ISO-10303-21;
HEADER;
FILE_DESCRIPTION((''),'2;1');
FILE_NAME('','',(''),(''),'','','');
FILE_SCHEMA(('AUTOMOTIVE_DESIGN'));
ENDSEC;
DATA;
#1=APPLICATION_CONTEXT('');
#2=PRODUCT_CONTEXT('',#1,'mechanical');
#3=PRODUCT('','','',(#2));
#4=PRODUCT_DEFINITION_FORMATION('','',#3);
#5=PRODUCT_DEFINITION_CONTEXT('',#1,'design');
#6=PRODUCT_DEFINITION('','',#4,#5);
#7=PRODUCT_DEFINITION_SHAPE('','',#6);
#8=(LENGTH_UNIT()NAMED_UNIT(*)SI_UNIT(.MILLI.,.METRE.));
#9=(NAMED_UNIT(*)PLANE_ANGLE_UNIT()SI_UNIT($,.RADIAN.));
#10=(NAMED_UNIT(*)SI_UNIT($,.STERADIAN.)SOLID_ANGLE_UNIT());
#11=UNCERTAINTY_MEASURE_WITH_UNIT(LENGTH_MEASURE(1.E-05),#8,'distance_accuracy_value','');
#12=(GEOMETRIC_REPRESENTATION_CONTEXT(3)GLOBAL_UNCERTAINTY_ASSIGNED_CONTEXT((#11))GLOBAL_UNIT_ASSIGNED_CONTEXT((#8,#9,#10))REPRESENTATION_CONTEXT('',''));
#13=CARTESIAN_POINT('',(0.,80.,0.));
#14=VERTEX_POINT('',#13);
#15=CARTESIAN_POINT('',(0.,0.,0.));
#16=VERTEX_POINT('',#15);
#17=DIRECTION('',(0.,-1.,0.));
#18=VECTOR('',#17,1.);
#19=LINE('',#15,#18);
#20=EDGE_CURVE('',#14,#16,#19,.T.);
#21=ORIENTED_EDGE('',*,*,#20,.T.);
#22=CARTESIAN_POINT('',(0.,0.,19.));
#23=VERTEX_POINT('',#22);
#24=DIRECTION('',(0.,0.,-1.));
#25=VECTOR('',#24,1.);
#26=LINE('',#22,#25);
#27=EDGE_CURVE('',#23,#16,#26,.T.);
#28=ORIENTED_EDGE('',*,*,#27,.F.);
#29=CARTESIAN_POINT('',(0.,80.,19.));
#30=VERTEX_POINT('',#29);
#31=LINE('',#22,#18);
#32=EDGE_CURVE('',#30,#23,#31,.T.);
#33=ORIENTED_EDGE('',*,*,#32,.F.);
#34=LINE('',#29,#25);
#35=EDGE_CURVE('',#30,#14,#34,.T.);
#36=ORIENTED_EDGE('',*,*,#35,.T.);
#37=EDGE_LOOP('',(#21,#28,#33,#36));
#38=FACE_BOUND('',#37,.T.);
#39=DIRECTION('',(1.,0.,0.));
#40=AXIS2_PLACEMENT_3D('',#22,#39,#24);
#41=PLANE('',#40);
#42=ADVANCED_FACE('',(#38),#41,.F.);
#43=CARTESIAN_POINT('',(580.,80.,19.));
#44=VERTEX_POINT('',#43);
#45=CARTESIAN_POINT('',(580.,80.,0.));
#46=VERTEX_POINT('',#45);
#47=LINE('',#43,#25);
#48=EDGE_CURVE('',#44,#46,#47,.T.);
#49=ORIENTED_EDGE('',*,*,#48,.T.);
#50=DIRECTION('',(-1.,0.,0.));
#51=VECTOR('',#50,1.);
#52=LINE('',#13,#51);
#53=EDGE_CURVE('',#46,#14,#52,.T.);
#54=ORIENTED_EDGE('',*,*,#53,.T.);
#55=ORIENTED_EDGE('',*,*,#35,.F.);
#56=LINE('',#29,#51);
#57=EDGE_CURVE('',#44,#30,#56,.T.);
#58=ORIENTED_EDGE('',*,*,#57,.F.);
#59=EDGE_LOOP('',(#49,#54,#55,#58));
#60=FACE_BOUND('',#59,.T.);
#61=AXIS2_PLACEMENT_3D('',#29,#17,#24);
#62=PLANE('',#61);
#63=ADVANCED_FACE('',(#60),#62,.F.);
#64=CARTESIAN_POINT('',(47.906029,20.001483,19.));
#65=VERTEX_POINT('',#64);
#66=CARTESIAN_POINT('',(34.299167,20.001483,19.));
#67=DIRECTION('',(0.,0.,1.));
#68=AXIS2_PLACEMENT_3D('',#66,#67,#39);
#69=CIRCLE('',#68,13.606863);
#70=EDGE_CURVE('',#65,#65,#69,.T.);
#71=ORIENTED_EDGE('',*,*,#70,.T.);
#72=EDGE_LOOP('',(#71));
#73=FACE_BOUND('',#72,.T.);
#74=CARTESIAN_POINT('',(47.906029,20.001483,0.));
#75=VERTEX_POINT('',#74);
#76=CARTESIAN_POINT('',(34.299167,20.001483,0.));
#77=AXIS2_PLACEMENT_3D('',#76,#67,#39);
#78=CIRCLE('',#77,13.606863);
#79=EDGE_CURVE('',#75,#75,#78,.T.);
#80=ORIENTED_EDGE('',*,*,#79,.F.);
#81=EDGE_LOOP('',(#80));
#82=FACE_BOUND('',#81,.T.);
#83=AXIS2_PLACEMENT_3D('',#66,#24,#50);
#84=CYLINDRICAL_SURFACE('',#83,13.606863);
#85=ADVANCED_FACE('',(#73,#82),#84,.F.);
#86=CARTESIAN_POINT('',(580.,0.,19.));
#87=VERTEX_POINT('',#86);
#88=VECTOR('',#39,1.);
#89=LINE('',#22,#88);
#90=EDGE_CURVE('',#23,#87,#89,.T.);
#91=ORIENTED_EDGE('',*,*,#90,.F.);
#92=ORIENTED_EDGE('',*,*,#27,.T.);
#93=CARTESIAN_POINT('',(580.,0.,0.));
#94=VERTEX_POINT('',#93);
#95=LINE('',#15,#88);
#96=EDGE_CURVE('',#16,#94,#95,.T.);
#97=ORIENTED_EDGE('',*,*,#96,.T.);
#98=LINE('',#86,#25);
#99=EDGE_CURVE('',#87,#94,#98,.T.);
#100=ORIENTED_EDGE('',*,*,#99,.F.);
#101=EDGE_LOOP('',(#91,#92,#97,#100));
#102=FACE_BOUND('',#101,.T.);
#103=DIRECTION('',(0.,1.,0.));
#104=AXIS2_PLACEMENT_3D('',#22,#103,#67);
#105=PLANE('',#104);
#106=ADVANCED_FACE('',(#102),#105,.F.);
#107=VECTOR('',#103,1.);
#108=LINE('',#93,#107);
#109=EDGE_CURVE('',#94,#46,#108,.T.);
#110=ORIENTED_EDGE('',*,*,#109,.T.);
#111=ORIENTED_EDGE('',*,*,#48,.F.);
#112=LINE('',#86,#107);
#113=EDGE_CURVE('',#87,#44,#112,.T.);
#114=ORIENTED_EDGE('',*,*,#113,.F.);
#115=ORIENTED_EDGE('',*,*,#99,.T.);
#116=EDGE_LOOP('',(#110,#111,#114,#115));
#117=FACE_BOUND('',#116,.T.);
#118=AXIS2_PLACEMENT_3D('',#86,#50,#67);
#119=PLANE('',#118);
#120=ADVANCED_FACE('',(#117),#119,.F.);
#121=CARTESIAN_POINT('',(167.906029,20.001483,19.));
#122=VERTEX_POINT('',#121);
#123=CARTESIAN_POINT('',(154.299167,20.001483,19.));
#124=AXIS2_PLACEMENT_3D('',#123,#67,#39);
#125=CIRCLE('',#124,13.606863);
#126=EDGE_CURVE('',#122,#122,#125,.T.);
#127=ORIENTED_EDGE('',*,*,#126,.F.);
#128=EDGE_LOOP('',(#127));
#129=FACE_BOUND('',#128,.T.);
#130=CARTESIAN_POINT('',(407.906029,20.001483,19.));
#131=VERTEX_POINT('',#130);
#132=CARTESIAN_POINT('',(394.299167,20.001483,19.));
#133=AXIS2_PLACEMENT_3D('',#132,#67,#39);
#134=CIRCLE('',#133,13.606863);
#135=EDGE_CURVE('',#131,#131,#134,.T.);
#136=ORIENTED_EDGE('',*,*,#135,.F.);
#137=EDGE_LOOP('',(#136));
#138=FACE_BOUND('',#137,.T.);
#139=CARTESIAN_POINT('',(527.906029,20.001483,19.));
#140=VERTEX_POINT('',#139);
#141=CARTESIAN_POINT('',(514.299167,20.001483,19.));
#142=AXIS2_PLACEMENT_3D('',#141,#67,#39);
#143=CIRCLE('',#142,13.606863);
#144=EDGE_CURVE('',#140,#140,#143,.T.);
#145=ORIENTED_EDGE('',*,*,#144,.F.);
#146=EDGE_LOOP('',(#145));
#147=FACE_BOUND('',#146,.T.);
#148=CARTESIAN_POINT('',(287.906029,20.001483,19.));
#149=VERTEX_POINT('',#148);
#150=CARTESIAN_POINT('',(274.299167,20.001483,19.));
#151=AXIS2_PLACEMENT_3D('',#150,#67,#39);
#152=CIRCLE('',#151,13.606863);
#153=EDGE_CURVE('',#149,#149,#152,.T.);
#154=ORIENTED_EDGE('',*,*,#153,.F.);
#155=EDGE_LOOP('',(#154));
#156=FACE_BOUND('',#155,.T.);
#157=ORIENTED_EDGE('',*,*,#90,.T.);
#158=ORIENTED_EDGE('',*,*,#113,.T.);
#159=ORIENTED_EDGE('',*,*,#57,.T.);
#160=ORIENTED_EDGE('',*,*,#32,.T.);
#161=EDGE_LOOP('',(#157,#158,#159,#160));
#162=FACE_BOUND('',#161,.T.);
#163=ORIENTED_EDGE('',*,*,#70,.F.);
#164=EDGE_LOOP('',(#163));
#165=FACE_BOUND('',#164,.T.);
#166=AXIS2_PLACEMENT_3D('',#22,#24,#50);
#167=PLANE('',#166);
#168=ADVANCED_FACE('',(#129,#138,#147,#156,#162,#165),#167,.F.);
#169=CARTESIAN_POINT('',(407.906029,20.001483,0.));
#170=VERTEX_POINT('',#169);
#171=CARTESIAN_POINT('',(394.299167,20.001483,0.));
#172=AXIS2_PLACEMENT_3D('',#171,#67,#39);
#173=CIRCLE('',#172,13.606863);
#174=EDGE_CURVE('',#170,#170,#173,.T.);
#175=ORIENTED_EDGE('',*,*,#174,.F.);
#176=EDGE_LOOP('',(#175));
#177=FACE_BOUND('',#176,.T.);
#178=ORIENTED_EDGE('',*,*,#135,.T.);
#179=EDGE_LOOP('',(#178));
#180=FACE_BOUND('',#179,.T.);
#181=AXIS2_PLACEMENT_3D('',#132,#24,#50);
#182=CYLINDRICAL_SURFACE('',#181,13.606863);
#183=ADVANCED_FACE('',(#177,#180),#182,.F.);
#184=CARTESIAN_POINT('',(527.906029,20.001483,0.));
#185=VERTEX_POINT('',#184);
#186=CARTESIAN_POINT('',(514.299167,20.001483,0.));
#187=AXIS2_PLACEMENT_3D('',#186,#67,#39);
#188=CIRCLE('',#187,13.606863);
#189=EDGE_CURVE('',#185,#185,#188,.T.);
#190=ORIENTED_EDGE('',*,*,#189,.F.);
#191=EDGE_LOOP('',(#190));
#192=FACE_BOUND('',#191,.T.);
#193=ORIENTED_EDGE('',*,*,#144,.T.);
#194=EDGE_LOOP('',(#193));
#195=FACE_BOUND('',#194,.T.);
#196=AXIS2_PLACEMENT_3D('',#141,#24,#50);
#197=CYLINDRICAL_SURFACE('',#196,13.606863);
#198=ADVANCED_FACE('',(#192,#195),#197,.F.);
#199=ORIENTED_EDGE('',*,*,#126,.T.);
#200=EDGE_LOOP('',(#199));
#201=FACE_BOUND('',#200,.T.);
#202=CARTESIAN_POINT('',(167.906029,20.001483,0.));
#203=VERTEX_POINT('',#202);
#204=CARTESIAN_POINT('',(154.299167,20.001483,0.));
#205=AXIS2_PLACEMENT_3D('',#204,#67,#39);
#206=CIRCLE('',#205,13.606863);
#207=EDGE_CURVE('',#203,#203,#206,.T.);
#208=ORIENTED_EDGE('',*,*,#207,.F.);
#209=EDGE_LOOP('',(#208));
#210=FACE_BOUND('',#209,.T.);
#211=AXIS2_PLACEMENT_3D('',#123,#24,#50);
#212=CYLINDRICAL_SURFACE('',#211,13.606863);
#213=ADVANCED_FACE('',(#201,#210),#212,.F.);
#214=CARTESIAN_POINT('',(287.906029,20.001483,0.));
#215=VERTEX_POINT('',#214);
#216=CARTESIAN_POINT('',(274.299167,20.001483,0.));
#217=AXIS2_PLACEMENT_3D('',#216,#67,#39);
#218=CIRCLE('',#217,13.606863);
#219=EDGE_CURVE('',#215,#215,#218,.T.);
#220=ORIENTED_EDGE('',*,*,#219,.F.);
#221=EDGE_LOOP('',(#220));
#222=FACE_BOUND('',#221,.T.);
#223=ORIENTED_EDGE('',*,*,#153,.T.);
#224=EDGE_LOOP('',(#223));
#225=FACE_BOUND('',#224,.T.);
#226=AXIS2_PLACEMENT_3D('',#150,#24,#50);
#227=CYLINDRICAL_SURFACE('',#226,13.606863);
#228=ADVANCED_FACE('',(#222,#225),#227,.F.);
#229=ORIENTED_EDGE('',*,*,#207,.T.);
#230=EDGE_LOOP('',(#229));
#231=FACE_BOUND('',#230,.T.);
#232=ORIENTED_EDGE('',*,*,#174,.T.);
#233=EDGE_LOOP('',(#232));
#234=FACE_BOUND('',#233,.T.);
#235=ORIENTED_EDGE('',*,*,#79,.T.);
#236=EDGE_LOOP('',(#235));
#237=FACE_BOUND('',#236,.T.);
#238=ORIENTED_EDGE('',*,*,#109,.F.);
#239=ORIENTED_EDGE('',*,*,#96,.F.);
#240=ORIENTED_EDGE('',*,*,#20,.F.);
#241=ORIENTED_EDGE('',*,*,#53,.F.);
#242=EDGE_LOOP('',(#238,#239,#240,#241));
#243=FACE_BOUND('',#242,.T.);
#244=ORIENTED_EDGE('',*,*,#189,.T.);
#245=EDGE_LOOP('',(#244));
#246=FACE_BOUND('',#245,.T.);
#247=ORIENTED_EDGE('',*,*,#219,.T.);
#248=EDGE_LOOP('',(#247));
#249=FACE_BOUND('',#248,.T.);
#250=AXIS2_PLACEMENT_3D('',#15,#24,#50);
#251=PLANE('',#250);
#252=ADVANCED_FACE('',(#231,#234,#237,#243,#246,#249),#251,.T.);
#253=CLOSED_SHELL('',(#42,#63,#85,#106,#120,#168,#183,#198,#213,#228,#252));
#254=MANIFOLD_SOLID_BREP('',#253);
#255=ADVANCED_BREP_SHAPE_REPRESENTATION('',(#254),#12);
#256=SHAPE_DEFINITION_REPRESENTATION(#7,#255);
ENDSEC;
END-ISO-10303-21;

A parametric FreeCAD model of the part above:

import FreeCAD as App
import Part
import Sketcher

V = App.Vector

doc = App.newDocument("Part")
body = doc.addObject("PartDesign::Body", "Body")

# Sketch on XY plane
sketch1 = doc.addObject("Sketcher::SketchObject", "Sketch")
body.addObject(sketch1)
sketch1.AttachmentSupport = (doc.XY_Plane, [""])
sketch1.MapMode = "FlatFace"
sketch1.addGeometry(Part.LineSegment(V(0, 80, 0), V(0, 0, 0)), False)
sketch1.addGeometry(Part.LineSegment(V(0, 0, 0), V(580, 0, 0)), False)
sketch1.addGeometry(Part.LineSegment(V(580, 0, 0), V(580, 80, 0)), False)
sketch1.addGeometry(Part.LineSegment(V(580, 80, 0), V(0, 80, 0)), False)
sketch1.addGeometry(Part.Circle(V(274, 20, 0), V(0, 0, 1), 14), False)
sketch1.addGeometry(Part.Circle(V(34, 20, 0), V(0, 0, 1), 14), False)
sketch1.addGeometry(Part.Circle(V(154, 20, 0), V(0, 0, 1), 14), False)
sketch1.addGeometry(Part.Circle(V(394, 20, 0), V(0, 0, 1), 14), False)
sketch1.addGeometry(Part.Circle(V(514, 20, 0), V(0, 0, 1), 14), False)
sketch1.addConstraint(Sketcher.Constraint("Coincident", 0, 2, 1, 1))
sketch1.addConstraint(Sketcher.Constraint("Coincident", 1, 2, 2, 1))
sketch1.addConstraint(Sketcher.Constraint("Coincident", 2, 2, 3, 1))
sketch1.addConstraint(Sketcher.Constraint("Coincident", 3, 2, 0, 1))
sketch1.addConstraint(Sketcher.Constraint("Vertical", 0))
sketch1.addConstraint(Sketcher.Constraint("Horizontal", 1))
sketch1.addConstraint(Sketcher.Constraint("Vertical", 2))
sketch1.addConstraint(Sketcher.Constraint("Horizontal", 3))
sketch1.addConstraint(Sketcher.Constraint("Coincident", 0, 2, -1, 1))
sketch1.addConstraint(Sketcher.Constraint("Equal", 4, 5))
sketch1.addConstraint(Sketcher.Constraint("Equal", 5, 6))
sketch1.addConstraint(Sketcher.Constraint("Equal", 6, 7))
sketch1.addConstraint(Sketcher.Constraint("Equal", 7, 8))
sketch1.addConstraint(Sketcher.Constraint("Horizontal", 4, 3, 5, 3))
sketch1.addConstraint(Sketcher.Constraint("Horizontal", 5, 3, 6, 3))
sketch1.addConstraint(Sketcher.Constraint("Horizontal", 6, 3, 7, 3))
sketch1.addConstraint(Sketcher.Constraint("Horizontal", 7, 3, 8, 3))
sketch1.addConstraint(Sketcher.Constraint("DistanceX", 1, 1, 1, 2, 580.0))
sketch1.addConstraint(Sketcher.Constraint("DistanceY", 0, 2, 0, 1, 80.0))
sketch1.addConstraint(Sketcher.Constraint("DistanceX", 5, 3, 4, 3, 240.0))
sketch1.addConstraint(Sketcher.Constraint("DistanceX", 6, 3, 4, 3, 120.0))
sketch1.addConstraint(Sketcher.Constraint("DistanceX", 4, 3, 7, 3, 120.0))
sketch1.addConstraint(Sketcher.Constraint("DistanceX", 7, 3, 8, 3, 120.0))
sketch1.addConstraint(Sketcher.Constraint("Diameter", 4, 27.213725))
sketch1.addConstraint(Sketcher.Constraint("DistanceX", -1, 1, 4, 3, 274.299167))
sketch1.addConstraint(Sketcher.Constraint("DistanceY", -1, 1, 4, 3, 20.001483))
pad1 = doc.addObject("PartDesign::Pad", "Pad")
body.addObject(pad1)
pad1.Profile = sketch1
pad1.Length = 19

doc.recompute()
